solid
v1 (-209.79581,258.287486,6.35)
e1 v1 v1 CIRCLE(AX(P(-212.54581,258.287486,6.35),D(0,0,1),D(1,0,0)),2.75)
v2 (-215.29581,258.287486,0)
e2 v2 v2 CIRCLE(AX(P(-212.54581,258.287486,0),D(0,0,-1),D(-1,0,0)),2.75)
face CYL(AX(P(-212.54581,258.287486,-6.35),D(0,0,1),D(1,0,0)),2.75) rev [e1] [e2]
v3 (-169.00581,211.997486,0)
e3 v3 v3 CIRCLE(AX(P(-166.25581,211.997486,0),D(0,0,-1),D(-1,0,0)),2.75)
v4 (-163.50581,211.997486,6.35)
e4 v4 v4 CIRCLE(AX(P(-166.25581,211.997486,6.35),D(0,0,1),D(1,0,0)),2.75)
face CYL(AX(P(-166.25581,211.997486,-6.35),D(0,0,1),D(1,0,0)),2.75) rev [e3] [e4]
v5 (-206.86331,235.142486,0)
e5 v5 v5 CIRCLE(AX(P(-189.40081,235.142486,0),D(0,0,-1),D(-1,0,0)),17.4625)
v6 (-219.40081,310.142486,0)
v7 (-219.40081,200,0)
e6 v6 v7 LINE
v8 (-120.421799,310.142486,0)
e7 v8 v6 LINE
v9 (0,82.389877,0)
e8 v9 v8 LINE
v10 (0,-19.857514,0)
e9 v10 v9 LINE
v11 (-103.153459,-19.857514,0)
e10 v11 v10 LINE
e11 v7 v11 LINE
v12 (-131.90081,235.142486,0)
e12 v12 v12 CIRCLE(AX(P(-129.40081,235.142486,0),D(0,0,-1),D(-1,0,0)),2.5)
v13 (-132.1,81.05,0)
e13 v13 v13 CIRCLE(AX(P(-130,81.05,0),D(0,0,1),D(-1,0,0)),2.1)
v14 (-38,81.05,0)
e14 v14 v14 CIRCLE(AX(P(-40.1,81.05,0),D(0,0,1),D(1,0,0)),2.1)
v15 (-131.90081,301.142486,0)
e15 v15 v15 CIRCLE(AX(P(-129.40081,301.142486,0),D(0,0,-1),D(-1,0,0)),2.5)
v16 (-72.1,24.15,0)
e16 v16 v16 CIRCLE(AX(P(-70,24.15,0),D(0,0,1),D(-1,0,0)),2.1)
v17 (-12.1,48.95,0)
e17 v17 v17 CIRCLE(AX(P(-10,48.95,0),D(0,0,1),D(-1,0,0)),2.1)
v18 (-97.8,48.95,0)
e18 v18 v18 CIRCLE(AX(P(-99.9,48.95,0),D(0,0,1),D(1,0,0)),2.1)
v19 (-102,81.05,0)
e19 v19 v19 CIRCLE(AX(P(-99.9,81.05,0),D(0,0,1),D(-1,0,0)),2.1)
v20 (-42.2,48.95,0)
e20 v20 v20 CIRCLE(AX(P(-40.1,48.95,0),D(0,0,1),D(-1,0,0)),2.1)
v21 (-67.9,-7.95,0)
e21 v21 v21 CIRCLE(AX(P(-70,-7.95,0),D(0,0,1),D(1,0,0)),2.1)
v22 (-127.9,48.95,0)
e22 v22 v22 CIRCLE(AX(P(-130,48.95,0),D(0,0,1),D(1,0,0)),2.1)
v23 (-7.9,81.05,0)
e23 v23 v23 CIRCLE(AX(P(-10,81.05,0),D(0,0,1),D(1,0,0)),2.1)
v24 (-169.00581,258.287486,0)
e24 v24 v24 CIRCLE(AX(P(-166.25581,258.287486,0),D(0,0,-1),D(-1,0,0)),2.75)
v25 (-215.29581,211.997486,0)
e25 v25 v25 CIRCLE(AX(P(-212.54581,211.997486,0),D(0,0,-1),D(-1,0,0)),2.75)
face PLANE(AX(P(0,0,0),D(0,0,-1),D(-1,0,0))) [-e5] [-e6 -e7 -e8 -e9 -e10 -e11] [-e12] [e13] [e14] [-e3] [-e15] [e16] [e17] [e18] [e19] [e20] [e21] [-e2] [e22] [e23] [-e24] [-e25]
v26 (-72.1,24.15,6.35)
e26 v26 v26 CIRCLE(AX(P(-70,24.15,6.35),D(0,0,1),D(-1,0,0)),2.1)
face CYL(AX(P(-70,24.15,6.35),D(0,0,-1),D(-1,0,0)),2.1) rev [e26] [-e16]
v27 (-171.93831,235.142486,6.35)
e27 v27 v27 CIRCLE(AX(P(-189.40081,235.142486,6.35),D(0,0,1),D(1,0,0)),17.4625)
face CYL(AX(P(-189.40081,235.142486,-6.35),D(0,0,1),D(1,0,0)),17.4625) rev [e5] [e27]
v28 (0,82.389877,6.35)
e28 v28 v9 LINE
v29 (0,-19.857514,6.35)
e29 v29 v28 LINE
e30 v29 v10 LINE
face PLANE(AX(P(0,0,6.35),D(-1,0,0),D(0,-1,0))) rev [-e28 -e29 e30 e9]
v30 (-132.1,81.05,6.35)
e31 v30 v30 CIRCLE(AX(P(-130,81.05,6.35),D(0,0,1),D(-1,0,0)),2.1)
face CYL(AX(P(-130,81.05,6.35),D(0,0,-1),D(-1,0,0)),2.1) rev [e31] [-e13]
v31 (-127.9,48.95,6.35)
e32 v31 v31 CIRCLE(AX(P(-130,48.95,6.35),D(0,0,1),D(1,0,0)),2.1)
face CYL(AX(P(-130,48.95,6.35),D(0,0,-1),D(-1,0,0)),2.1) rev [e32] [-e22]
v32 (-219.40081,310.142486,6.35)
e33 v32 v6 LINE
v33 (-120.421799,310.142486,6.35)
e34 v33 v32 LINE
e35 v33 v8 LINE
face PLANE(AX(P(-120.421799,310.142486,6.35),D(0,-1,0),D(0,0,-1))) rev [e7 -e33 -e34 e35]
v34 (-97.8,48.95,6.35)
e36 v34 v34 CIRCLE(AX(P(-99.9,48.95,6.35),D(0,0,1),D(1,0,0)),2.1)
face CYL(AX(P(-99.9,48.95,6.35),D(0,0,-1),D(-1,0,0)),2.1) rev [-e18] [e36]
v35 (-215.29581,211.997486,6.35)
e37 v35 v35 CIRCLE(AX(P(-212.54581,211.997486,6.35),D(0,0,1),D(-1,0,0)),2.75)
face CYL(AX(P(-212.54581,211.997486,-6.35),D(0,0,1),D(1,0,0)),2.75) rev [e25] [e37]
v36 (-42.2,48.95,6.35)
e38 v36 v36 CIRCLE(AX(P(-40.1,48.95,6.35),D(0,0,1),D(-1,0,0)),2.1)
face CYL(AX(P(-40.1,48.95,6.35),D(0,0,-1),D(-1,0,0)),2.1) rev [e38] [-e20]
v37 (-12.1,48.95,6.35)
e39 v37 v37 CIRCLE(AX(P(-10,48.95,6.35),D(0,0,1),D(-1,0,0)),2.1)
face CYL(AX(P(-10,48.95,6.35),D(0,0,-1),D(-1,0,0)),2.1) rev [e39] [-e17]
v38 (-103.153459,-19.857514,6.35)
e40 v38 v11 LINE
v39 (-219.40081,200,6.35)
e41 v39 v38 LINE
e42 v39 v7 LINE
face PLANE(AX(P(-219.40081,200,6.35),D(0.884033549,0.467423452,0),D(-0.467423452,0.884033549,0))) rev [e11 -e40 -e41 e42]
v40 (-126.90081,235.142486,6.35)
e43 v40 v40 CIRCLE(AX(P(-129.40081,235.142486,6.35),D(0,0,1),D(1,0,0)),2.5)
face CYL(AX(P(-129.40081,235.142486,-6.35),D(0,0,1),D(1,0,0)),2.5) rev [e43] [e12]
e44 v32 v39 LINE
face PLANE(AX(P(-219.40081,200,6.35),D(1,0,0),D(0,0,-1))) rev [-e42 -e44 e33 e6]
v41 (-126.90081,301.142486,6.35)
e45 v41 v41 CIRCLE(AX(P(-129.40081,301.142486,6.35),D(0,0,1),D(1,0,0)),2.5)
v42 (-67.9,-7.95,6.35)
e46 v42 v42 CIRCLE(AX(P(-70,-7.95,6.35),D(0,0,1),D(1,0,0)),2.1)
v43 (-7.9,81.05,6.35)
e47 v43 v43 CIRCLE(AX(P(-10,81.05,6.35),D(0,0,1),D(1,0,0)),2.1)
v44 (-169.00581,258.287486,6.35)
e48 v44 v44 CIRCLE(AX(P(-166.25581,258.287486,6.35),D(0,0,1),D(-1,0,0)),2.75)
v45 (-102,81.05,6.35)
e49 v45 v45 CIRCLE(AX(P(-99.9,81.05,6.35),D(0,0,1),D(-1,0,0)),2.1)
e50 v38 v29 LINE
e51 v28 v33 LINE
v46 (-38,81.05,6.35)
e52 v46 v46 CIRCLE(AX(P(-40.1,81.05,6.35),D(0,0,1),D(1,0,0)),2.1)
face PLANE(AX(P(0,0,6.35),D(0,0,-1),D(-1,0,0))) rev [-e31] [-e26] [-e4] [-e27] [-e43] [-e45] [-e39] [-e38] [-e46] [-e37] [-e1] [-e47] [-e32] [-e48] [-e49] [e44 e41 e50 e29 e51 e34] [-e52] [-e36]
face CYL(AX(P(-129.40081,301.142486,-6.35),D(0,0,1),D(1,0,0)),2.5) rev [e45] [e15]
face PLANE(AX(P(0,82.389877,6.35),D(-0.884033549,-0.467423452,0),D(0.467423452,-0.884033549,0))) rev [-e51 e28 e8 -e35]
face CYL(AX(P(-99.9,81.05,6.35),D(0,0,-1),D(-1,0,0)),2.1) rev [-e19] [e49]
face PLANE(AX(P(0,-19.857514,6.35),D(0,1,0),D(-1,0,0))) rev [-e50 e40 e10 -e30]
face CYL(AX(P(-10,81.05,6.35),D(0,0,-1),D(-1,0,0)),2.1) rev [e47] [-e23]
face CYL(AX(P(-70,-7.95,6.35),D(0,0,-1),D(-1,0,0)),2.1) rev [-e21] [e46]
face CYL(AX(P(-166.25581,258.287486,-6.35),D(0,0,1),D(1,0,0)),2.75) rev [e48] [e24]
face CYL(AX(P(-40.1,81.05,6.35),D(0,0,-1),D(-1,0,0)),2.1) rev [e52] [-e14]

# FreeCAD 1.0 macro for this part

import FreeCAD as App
import Part
import Sketcher
from FreeCAD import Vector
Q = App.Units.Quantity


def add_polygon(sketch, points):
    """Adds a closed chain of lines whose ends are joined by coincident constraints."""
    first, n = sketch.GeometryCount, len(points)
    for a, b in zip(points, points[1:] + points[:1]):
        sketch.addGeometry(Part.LineSegment(App.Vector(*a, 0), App.Vector(*b, 0)), False)
    for i in range(n):
        sketch.addConstraint(Sketcher.Constraint("Coincident", first + i, 2, first + (i + 1) % n, 1))

doc = App.newDocument("Part")
body = doc.addObject("PartDesign::Body", "Body")

sketch1 = body.newObject("Sketcher::SketchObject", "Sketch")
sketch1.AttachmentSupport = (doc.getObject("XY_Plane"), [""])
sketch1.MapMode = "FlatFace"
add_polygon(sketch1, [(0, 82.4), (-120.4, 310.1), (-219.4, 310.1), (-219.4, 200), (-103.2, -19.9), (0, -19.9)])
sketch1.addGeometry(Part.Circle(Vector(-70, -8, 0), Vector(0, 0, 1), 2.1), False)
sketch1.addGeometry(Part.Circle(Vector(-70, 24.1, 0), Vector(0, 0, 1), 2.1), False)
sketch1.addGeometry(Part.Circle(Vector(-130, 49, 0), Vector(0, 0, 1), 2.1), False)
sketch1.addGeometry(Part.Circle(Vector(-99.9, 49, 0), Vector(0, 0, 1), 2.1), False)
sketch1.addGeometry(Part.Circle(Vector(-130, 81, 0), Vector(0, 0, 1), 2.1), False)
sketch1.addGeometry(Part.Circle(Vector(-99.9, 81, 0), Vector(0, 0, 1), 2.1), False)
sketch1.addGeometry(Part.Circle(Vector(-40.1, 49, 0), Vector(0, 0, 1), 2.1), False)
sketch1.addGeometry(Part.Circle(Vector(-10, 49, 0), Vector(0, 0, 1), 2.1), False)
sketch1.addGeometry(Part.Circle(Vector(-40.1, 81, 0), Vector(0, 0, 1), 2.1), False)
sketch1.addGeometry(Part.Circle(Vector(-10, 81, 0), Vector(0, 0, 1), 2.1), False)
sketch1.addConstraint(Sketcher.Constraint("Horizontal", 1))
sketch1.addConstraint(Sketcher.Constraint("Vertical", 2))
sketch1.addConstraint(Sketcher.Constraint("Horizontal", 4))
sketch1.addConstraint(Sketcher.Constraint("Vertical", 5))
sketch1.addConstraint(Sketcher.Constraint("Equal", 6, 7))
sketch1.addConstraint(Sketcher.Constraint("Equal", 7, 8))
sketch1.addConstraint(Sketcher.Constraint("Equal", 8, 9))
sketch1.addConstraint(Sketcher.Constraint("Equal", 9, 10))
sketch1.addConstraint(Sketcher.Constraint("Equal", 10, 11))
sketch1.addConstraint(Sketcher.Constraint("Equal", 11, 12))
sketch1.addConstraint(Sketcher.Constraint("Equal", 12, 13))
sketch1.addConstraint(Sketcher.Constraint("Equal", 13, 14))
sketch1.addConstraint(Sketcher.Constraint("Equal", 14, 15))
sketch1.addConstraint(Sketcher.Constraint("PointOnObject", 4, 2, -2))
sketch1.addConstraint(Sketcher.Constraint("Parallel", 0, 3))
sketch1.addConstraint(Sketcher.Constraint("Horizontal", 8, 3, 9, 3))
sketch1.addConstraint(Sketcher.Constraint("Horizontal", 10, 3, 11, 3))
sketch1.addConstraint(Sketcher.Constraint("Horizontal", 9, 3, 12, 3))
sketch1.addConstraint(Sketcher.Constraint("Horizontal", 12, 3, 13, 3))
sketch1.addConstraint(Sketcher.Constraint("Horizontal", 11, 3, 14, 3))
sketch1.addConstraint(Sketcher.Constraint("Horizontal", 14, 3, 15, 3))
sketch1.addConstraint(Sketcher.Constraint("Vertical", 6, 3, 7, 3))
sketch1.addConstraint(Sketcher.Constraint("Vertical", 8, 3, 10, 3))
sketch1.addConstraint(Sketcher.Constraint("Vertical", 9, 3, 11, 3))
sketch1.addConstraint(Sketcher.Constraint("Vertical", 12, 3, 14, 3))
sketch1.addConstraint(Sketcher.Constraint("Vertical", 13, 3, 15, 3))
sketch1.addConstraint(Sketcher.Constraint("Diameter", 6, Q("4.2 mm")))
sketch1.addConstraint(Sketcher.Constraint("DistanceX", 6, 3, -1, 1, Q("70 mm")))
sketch1.addConstraint(Sketcher.Constraint("DistanceX", 8, 3, -1, 1, Q("130 mm")))
sketch1.addConstraint(Sketcher.Constraint("DistanceX", 13, 3, -1, 1, Q("10 mm")))
sketch1.addConstraint(Sketcher.Constraint("DistanceY", -1, 1, 2, 2, Q("200 mm")))
sketch1.addConstraint(Sketcher.Constraint("DistanceY", 6, 3, 10, 3, Q("89 mm")))
sketch1.addConstraint(Sketcher.Constraint("DistanceX", 9, 3, -1, 1, Q("99.9 mm")))
sketch1.addConstraint(Sketcher.Constraint("DistanceX", 12, 3, -1, 1, Q("40.1 mm")))
sketch1.addConstraint(Sketcher.Constraint("DistanceY", 6, 3, 7, 3, Q("32.1 mm")))
sketch1.addConstraint(Sketcher.Constraint("DistanceY", 7, 3, 8, 3, Q("24.8 mm")))
sketch1.addConstraint(Sketcher.Constraint("DistanceY", 6, 3, -1, 1, Q("7.95 mm")))
sketch1.addConstraint(Sketcher.Constraint("DistanceX", 1, 2, 1, 1, Q("98.97901 mm")))
sketch1.addConstraint(Sketcher.Constraint("DistanceX", 4, 1, 4, 2, Q("103.153459 mm")))
sketch1.addConstraint(Sketcher.Constraint("DistanceY", 5, 1, 5, 2, Q("102.247391 mm")))
sketch1.addConstraint(Sketcher.Constraint("DistanceX", 0, 2, -1, 1, Q("120.421799 mm")))
sketch1.addConstraint(Sketcher.Constraint("Distance", 0, Q("257.62892 mm")))
pad1 = body.newObject("PartDesign::Pad", "Pad")
pad1.Profile = sketch1
pad1.Length = 6.35

sketch2 = body.newObject("Sketcher::SketchObject", "Sketch001")
sketch2.AttachmentSupport = (doc.getObject("XY_Plane"), [""])
sketch2.MapMode = "FlatFace"
sketch2.AttachmentOffset = App.Placement(Vector(0, 0, 6.35), App.Rotation())
sketch2.addGeometry(Part.Circle(Vector(-212.5, 258.3, 0), Vector(0, 0, 1), 2.8), False)
sketch2.addGeometry(Part.Circle(Vector(-212.5, 212, 0), Vector(0, 0, 1), 2.8), False)
sketch2.addGeometry(Part.Circle(Vector(-166.3, 212, 0), Vector(0, 0, 1), 2.8), False)
sketch2.addGeometry(Part.Circle(Vector(-166.3, 258.3, 0), Vector(0, 0, 1), 2.8), False)
sketch2.addGeometry(Part.Circle(Vector(-189.4, 235.1, 0), Vector(0, 0, 1), 17.5), False)
sketch2.addGeometry(Part.Circle(Vector(-129.4, 235.1, 0), Vector(0, 0, 1), 2.5), False)
sketch2.addGeometry(Part.Circle(Vector(-129.4, 301.1, 0), Vector(0, 0, 1), 2.5), False)
sketch2.addConstraint(Sketcher.Constraint("Equal", 0, 1))
sketch2.addConstraint(Sketcher.Constraint("Equal", 1, 2))
sketch2.addConstraint(Sketcher.Constraint("Equal", 2, 3))
sketch2.addConstraint(Sketcher.Constraint("Equal", 5, 6))
sketch2.addConstraint(Sketcher.Constraint("Horizontal", 1, 3, 2, 3))
sketch2.addConstraint(Sketcher.Constraint("Horizontal", 0, 3, 3, 3))
sketch2.addConstraint(Sketcher.Constraint("Horizontal", 4, 3, 5, 3))
sketch2.addConstraint(Sketcher.Constraint("Vertical", 0, 3, 1, 3))
sketch2.addConstraint(Sketcher.Constraint("Vertical", 2, 3, 3, 3))
sketch2.addConstraint(Sketcher.Constraint("Vertical", 5, 3, 6, 3))
sketch2.addConstraint(Sketcher.Constraint("Diameter", 5, Q("5 mm")))
sketch2.addConstraint(Sketcher.Constraint("Diameter", 0, Q("5.5 mm")))
sketch2.addConstraint(Sketcher.Constraint("Diameter", 4, Q("34.925 mm")))
sketch2.addConstraint(Sketcher.Constraint("DistanceX", 4, 3, 5, 3, Q("60 mm")))
sketch2.addConstraint(Sketcher.Constraint("DistanceY", 5, 3, 6, 3, Q("66 mm")))
sketch2.addConstraint(Sketcher.Constraint("DistanceY", 1, 3, 0, 3, Q("46.29 mm")))
sketch2.addConstraint(Sketcher.Constraint("DistanceX", 1, 3, 2, 3, Q("46.29 mm")))
sketch2.addConstraint(Sketcher.Constraint("DistanceX", 0, 3, 4, 3, Q("23.145 mm")))
sketch2.addConstraint(Sketcher.Constraint("DistanceY", 4, 3, 0, 3, Q("23.145 mm")))
sketch2.addConstraint(Sketcher.Constraint("DistanceX", 0, 3, -1, 1, Q("212.54581 mm")))
sketch2.addConstraint(Sketcher.Constraint("DistanceY", -1, 1, 0, 3, Q("258.287486 mm")))
pocket1 = body.newObject("PartDesign::Pocket", "Pocket")
pocket1.Profile = sketch2
pocket1.Length = 12.7

doc.recompute()
